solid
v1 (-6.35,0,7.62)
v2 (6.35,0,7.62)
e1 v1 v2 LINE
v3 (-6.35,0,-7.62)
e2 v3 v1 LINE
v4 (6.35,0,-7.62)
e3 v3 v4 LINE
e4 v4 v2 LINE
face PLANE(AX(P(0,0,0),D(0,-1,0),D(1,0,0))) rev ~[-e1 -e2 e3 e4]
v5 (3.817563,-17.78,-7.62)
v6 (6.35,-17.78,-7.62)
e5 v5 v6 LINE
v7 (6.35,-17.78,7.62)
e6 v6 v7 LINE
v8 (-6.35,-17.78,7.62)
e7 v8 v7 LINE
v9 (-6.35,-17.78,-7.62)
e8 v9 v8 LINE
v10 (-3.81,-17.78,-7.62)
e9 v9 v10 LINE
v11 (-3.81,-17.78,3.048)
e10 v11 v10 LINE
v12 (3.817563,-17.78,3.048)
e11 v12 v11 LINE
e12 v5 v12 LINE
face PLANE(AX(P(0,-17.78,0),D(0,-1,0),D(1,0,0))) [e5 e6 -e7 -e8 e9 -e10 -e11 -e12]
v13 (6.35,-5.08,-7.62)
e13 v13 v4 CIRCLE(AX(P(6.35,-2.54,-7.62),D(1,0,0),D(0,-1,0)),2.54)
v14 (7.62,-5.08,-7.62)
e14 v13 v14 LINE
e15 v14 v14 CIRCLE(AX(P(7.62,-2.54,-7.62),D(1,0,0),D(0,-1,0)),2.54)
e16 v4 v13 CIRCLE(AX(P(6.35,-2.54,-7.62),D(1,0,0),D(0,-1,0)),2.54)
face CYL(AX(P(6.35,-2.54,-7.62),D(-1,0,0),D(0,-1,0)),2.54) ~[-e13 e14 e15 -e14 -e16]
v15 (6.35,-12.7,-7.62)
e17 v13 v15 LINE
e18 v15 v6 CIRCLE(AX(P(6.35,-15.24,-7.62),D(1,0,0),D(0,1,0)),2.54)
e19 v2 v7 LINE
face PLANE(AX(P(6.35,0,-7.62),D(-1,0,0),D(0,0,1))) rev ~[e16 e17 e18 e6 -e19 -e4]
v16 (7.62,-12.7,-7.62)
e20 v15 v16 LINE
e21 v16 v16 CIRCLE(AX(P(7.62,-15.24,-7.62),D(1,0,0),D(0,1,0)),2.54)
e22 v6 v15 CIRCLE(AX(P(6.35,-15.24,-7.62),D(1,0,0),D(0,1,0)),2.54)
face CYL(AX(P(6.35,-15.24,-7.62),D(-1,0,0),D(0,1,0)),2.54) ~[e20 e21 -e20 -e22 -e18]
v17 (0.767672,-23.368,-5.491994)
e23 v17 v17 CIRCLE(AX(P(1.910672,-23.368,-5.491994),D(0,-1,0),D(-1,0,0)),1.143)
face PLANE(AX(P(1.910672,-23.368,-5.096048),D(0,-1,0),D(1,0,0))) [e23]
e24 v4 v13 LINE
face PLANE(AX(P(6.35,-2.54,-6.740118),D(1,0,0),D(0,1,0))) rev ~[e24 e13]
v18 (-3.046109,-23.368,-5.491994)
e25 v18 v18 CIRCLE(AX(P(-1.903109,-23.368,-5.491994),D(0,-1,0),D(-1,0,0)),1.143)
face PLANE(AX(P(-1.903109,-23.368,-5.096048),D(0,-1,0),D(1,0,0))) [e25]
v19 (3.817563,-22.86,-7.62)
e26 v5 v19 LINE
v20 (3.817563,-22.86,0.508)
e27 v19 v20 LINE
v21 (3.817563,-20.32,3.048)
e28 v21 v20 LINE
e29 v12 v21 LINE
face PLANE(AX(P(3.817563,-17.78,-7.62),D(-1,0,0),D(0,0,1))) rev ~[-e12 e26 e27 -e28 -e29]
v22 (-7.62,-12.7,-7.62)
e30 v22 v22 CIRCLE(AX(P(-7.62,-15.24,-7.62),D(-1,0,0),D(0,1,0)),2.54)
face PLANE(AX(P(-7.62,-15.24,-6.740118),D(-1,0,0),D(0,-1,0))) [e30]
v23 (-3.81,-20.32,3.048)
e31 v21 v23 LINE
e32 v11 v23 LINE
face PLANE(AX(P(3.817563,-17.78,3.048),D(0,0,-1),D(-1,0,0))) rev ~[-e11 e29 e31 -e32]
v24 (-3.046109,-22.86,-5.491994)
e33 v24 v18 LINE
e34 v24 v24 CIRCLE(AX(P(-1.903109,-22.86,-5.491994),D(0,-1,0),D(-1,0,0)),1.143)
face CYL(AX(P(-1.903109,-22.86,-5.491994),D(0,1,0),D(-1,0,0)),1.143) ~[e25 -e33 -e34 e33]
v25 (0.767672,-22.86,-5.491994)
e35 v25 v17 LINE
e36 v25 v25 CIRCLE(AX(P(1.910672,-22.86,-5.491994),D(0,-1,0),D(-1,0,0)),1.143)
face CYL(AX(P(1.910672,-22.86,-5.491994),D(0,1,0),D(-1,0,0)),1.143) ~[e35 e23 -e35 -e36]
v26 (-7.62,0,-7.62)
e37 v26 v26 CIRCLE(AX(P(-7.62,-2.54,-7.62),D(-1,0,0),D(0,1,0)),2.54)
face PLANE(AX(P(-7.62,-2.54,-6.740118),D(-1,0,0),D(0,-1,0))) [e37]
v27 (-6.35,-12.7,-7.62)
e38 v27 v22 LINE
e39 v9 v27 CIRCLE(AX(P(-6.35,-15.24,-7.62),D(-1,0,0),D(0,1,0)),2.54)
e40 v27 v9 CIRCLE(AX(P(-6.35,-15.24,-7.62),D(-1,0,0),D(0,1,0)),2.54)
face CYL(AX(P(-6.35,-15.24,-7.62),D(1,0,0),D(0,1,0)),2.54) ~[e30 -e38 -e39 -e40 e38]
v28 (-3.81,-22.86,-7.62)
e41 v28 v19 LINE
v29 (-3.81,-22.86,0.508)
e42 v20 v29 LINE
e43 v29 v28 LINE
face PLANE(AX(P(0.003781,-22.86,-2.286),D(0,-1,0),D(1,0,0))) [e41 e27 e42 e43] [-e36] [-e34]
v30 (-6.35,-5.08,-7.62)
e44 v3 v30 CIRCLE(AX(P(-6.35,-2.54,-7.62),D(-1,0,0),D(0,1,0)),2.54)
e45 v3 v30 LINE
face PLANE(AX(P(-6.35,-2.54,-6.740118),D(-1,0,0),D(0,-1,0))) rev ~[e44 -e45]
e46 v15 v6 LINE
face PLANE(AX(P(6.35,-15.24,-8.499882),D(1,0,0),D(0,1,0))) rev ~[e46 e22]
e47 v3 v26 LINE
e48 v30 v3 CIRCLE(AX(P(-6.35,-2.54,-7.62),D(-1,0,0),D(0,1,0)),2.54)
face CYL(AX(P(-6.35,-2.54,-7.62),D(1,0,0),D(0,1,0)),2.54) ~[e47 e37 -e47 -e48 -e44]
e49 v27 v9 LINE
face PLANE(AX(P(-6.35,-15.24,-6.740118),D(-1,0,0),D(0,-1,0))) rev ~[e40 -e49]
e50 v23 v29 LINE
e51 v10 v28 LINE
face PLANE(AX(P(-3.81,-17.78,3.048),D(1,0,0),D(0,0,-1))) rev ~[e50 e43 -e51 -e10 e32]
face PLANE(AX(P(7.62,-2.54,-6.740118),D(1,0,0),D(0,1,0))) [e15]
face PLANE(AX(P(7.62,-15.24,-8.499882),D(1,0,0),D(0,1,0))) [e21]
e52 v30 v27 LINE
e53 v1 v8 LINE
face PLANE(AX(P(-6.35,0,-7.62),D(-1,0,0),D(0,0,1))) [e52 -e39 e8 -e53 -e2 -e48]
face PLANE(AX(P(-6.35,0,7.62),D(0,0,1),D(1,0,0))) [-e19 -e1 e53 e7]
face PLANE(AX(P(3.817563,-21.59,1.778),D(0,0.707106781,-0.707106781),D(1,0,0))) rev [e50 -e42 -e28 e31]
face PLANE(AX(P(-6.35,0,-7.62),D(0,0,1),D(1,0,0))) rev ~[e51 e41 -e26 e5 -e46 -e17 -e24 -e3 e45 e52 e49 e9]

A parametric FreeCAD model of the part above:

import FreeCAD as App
import Part
import Sketcher

V = App.Vector
Q = App.Units.Quantity


def edges_at(feature, points):
    """Names of the edges that pass closest to the given points."""
    edges = feature.Shape.Edges
    near = lambda p: min(range(len(edges)), key=lambda i: edges[i].distToShape(Part.Vertex(*p))[0])
    return sorted({f"Edge{near(p) + 1}" for p in points})

doc = App.newDocument("Part")
body = doc.addObject("PartDesign::Body", "Body")

sketch1 = body.newObject("Sketcher::SketchObject", "Sketch")
sketch1.AttachmentSupport = (doc.getObject("XZ_Plane"), [""])
sketch1.MapMode = "FlatFace"
sketch1.addGeometry([
    Part.LineSegment(V(-6, 8, 0), V(-6, -8, 0)),
    Part.LineSegment(V(-6, -8, 0), V(6, -8, 0)),
    Part.LineSegment(V(6, -8, 0), V(6, 8, 0)),
    Part.LineSegment(V(6, 8, 0), V(-6, 8, 0)),
], False)
sketch1.addConstraint([
    Sketcher.Constraint("Coincident", 0, 2, 1, 1),
    Sketcher.Constraint("Coincident", 1, 2, 2, 1),
    Sketcher.Constraint("Coincident", 2, 2, 3, 1),
    Sketcher.Constraint("Coincident", 3, 2, 0, 1),
    Sketcher.Constraint("Vertical", 0),
    Sketcher.Constraint("Horizontal", 1),
    Sketcher.Constraint("Vertical", 2),
    Sketcher.Constraint("Horizontal", 3),
    Sketcher.Constraint("Symmetric", 0, 2, 2, 2, -1, 1),
    Sketcher.Constraint("DistanceX", 1, 1, 1, 2, Q("0.5 in")),
    Sketcher.Constraint("DistanceY", 0, 2, 0, 1, Q("0.6 in")),
])
pad1 = body.newObject("PartDesign::Pad", "Pad")
pad1.Profile = sketch1
pad1.Length = Q("0.7 in")

sketch2 = body.newObject("Sketcher::SketchObject", "Sketch001")
sketch2.AttachmentSupport = (doc.getObject("XZ_Plane"), [""])
sketch2.MapMode = "FlatFace"
sketch2.AttachmentOffset = App.Placement(V(0, 0, 0.7 * 25.4), App.Rotation())
sketch2.addGeometry([
    Part.LineSegment(V(-4, 3, 0), V(-4, -8, 0)),
    Part.LineSegment(V(-4, -8, 0), V(4, -8, 0)),
    Part.LineSegment(V(4, -8, 0), V(4, 3, 0)),
    Part.LineSegment(V(4, 3, 0), V(-4, 3, 0)),
], False)
sketch2.addConstraint([
    Sketcher.Constraint("Coincident", 0, 2, 1, 1),
    Sketcher.Constraint("Coincident", 1, 2, 2, 1),
    Sketcher.Constraint("Coincident", 2, 2, 3, 1),
    Sketcher.Constraint("Coincident", 3, 2, 0, 1),
    Sketcher.Constraint("Vertical", 0),
    Sketcher.Constraint("Horizontal", 1),
    Sketcher.Constraint("Vertical", 2),
    Sketcher.Constraint("Horizontal", 3),
    Sketcher.Constraint("DistanceY", 0, 2, 0, 1, Q("0.42 in")),
    Sketcher.Constraint("DistanceY", 0, 2, -1, 1, Q("0.3 in")),
    Sketcher.Constraint("DistanceX", 0, 2, -1, 1, Q("0.15 in")),
    Sketcher.Constraint("DistanceX", 1, 1, 1, 2, Q("7.627563 mm")),
])
pad2 = body.newObject("PartDesign::Pad", "Pad001")
pad2.Profile = sketch2
pad2.Length = Q("0.2 in")

sketch3 = body.newObject("Sketcher::SketchObject", "Sketch002")
sketch3.AttachmentSupport = (doc.getObject("YZ_Plane"), [""])
sketch3.MapMode = "FlatFace"
sketch3.AttachmentOffset = App.Placement(V(0, 0, -0.25 * 25.4), App.Rotation())
sketch3.addGeometry([
    Part.Circle(V(-2.5, -7.6, 0), V(0, 0, 1), 2.5),
    Part.Circle(V(-15.2, -7.6, 0), V(0, 0, 1), 2.5),
], False)
sketch3.addConstraint([
    Sketcher.Constraint("Equal", 0, 1),
    Sketcher.Constraint("Horizontal", 0, 3, 1, 3),
    Sketcher.Constraint("Diameter", 0, Q("0.2 in")),
    Sketcher.Constraint("DistanceX", 0, 3, -1, 1, Q("0.1 in")),
    Sketcher.Constraint("DistanceY", 0, 3, -1, 1, Q("0.3 in")),
    Sketcher.Constraint("DistanceX", 1, 3, -1, 1, Q("0.6 in")),
])
pad3 = body.newObject("PartDesign::Pad", "Pad002")
pad3.Profile = sketch3
pad3.Length = Q("0.05 in")
pad3.Reversed = True

sketch4 = body.newObject("Sketcher::SketchObject", "Sketch003")
sketch4.AttachmentSupport = (doc.getObject("XZ_Plane"), [""])
sketch4.MapMode = "FlatFace"
sketch4.AttachmentOffset = App.Placement(V(0, 0, 0.9 * 25.4), App.Rotation())
sketch4.addGeometry([
    Part.Circle(V(-1.9, -5.5, 0), V(0, 0, 1), 1.1),
    Part.Circle(V(1.9, -5.5, 0), V(0, 0, 1), 1.1),
], False)
sketch4.addConstraint([
    Sketcher.Constraint("Equal", 0, 1),
    Sketcher.Constraint("Horizontal", 0, 3, 1, 3),
    Sketcher.Constraint("Diameter", 0, Q("0.09 in")),
    Sketcher.Constraint("DistanceX", 0, 3, -1, 1, Q("1.903109 mm")),
    Sketcher.Constraint("DistanceX", 0, 3, 1, 3, Q("3.813781 mm")),
    Sketcher.Constraint("DistanceY", 0, 3, -1, 1, Q("5.491994 mm")),
])
pad4 = body.newObject("PartDesign::Pad", "Pad003")
pad4.Profile = sketch4
pad4.Length = Q("0.02 in")

sketch5 = body.newObject("Sketcher::SketchObject", "Sketch004")
sketch5.AttachmentSupport = (doc.getObject("YZ_Plane"), [""])
sketch5.MapMode = "FlatFace"
sketch5.AttachmentOffset = App.Placement(V(0, 0, 0.25 * 25.4), App.Rotation())
sketch5.addGeometry([
    Part.Circle(V(-15.2, -7.6, 0), V(0, 0, 1), 2.5),
    Part.Circle(V(-2.5, -7.6, 0), V(0, 0, 1), 2.5),
], False)
sketch5.addConstraint([
    Sketcher.Constraint("Equal", 0, 1),
    Sketcher.Constraint("Horizontal", 0, 3, 1, 3),
    Sketcher.Constraint("Diameter", 0, Q("0.2 in")),
    Sketcher.Constraint("DistanceX", 0, 3, -1, 1, Q("0.6 in")),
    Sketcher.Constraint("DistanceY", 0, 3, -1, 1, Q("0.3 in")),
    Sketcher.Constraint("DistanceX", 1, 3, -1, 1, Q("0.1 in")),
])
pad5 = body.newObject("PartDesign::Pad", "Pad004")
pad5.Profile = sketch5
pad5.Length = Q("0.05 in")
doc.recompute()

chamfer = body.newObject("PartDesign::Chamfer", "Chamfer")
chamfer.Base = (pad5, edges_at(pad5, [(0.004, -22.86, 3.048)]))
chamfer.Size = Q("0.1 in")

doc.recompute()
